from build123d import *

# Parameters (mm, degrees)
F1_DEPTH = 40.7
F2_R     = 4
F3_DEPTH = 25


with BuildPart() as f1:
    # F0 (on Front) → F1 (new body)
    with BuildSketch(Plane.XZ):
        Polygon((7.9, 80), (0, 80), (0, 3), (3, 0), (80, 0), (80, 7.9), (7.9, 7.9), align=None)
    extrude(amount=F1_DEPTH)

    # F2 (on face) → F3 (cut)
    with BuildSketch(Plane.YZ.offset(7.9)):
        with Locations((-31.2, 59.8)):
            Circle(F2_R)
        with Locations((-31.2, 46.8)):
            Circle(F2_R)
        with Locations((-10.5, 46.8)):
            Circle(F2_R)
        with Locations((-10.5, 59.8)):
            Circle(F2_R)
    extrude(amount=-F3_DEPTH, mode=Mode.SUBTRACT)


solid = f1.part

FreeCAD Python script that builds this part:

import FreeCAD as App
import Part
import Sketcher
Q = App.Units.Quantity


def add_polygon(sketch, points):
    """Adds a closed chain of lines whose ends are joined by coincident constraints."""
    first, n = sketch.GeometryCount, len(points)
    for a, b in zip(points, points[1:] + points[:1]):
        sketch.addGeometry(Part.LineSegment(App.Vector(*a, 0), App.Vector(*b, 0)), False)
    for i in range(n):
        sketch.addConstraint(Sketcher.Constraint("Coincident", first + i, 2, first + (i + 1) % n, 1))

doc = App.newDocument("Part")
body = doc.addObject("PartDesign::Body", "Body")

sketch1 = doc.addObject("Sketcher::SketchObject", "Sketch")
body.addObject(sketch1)
sketch1.AttachmentSupport = (doc.XZ_Plane, [""])
sketch1.MapMode = "FlatFace"
add_polygon(sketch1, [(7.9, 80), (0, 80), (0, 3), (3, 0), (80, 0), (80, 7.9), (7.9, 7.9)])
sketch1.addConstraint([
    Sketcher.Constraint("Horizontal", 0),
    Sketcher.Constraint("Vertical", 1),
    Sketcher.Constraint("Horizontal", 3),
    Sketcher.Constraint("Vertical", 4),
    Sketcher.Constraint("Horizontal", 5),
    Sketcher.Constraint("Vertical", 6),
    Sketcher.Constraint("PointOnObject", 0, 2, -2),
    Sketcher.Constraint("PointOnObject", 2, 2, -1),
    Sketcher.Constraint("Equal", 3, 1),
    Sketcher.Constraint("Equal", 0, 4),
    Sketcher.Constraint("Equal", 5, 6),
    Sketcher.Constraint("DistanceX", 3, 1, 3, 2, Q("77 mm")),
    Sketcher.Constraint("DistanceX", 0, 2, 0, 1, Q("7.9 mm")),
    Sketcher.Constraint("DistanceX", 5, 2, 5, 1, Q("72.1 mm")),
])
pad1 = doc.addObject("PartDesign::Pad", "Pad")
body.addObject(pad1)
pad1.Profile = sketch1
pad1.Length = 40.7

sketch2 = doc.addObject("Sketcher::SketchObject", "Sketch001")
body.addObject(sketch2)
sketch2.AttachmentSupport = (doc.YZ_Plane, [""])
sketch2.MapMode = "FlatFace"
sketch2.AttachmentOffset = App.Placement(App.Vector(0, 0, 7.9), App.Rotation())
sketch2.addGeometry([
    Part.Circle(App.Vector(-31.2, 59.8, 0), App.Vector(0, 0, 1), 4),
    Part.Circle(App.Vector(-31.2, 46.8, 0), App.Vector(0, 0, 1), 4),
    Part.Circle(App.Vector(-10.5, 46.8, 0), App.Vector(0, 0, 1), 4),
    Part.Circle(App.Vector(-10.5, 59.8, 0), App.Vector(0, 0, 1), 4),
], False)
sketch2.addConstraint([
    Sketcher.Constraint("Equal", 0, 1),
    Sketcher.Constraint("Equal", 1, 2),
    Sketcher.Constraint("Equal", 2, 3),
    Sketcher.Constraint("Horizontal", 1, 3, 2, 3),
    Sketcher.Constraint("Horizontal", 0, 3, 3, 3),
    Sketcher.Constraint("Vertical", 0, 3, 1, 3),
    Sketcher.Constraint("Vertical", 2, 3, 3, 3),
    Sketcher.Constraint("Diameter", 0, Q("8 mm")),
    Sketcher.Constraint("DistanceY", 1, 3, 0, 3, Q("13 mm")),
    Sketcher.Constraint("DistanceX", 0, 3, -1, 1, Q("31.2 mm")),
    Sketcher.Constraint("DistanceY", -1, 1, 0, 3, Q("59.8 mm")),
    Sketcher.Constraint("DistanceX", 2, 3, -1, 1, Q("10.5 mm")),
])
pocket1 = doc.addObject("PartDesign::Pocket", "Pocket")
body.addObject(pocket1)
pocket1.Profile = sketch2
pocket1.Length = 25

doc.recompute()
